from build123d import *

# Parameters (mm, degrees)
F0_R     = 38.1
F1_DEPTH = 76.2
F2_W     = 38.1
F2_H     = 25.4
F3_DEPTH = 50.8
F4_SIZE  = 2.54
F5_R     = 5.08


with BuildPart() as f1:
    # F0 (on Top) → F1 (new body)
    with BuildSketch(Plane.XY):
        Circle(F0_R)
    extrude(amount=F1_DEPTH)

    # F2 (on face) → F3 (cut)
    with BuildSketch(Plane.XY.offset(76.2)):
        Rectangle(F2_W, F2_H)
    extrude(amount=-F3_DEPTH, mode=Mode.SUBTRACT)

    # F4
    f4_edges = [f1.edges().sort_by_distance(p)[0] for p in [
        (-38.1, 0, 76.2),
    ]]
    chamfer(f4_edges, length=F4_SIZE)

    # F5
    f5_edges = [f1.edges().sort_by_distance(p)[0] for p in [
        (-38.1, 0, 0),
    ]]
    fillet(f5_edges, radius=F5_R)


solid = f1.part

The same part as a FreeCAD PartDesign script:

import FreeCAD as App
import Part
import Sketcher

V = App.Vector
Q = App.Units.Quantity


def edges_at(feature, points):
    """Names of the edges that pass closest to the given points."""
    edges = feature.Shape.Edges
    near = lambda p: min(range(len(edges)), key=lambda i: edges[i].distToShape(Part.Vertex(*p))[0])
    return sorted({f"Edge{near(p) + 1}" for p in points})


def add_polygon(sketch, points):
    """Adds a closed chain of lines whose ends are joined by coincident constraints."""
    first, n = sketch.GeometryCount, len(points)
    for a, b in zip(points, points[1:] + points[:1]):
        sketch.addGeometry(Part.LineSegment(App.Vector(*a, 0), App.Vector(*b, 0)), False)
    for i in range(n):
        sketch.addConstraint(Sketcher.Constraint("Coincident", first + i, 2, first + (i + 1) % n, 1))

doc = App.newDocument("Part")
body = doc.addObject("PartDesign::Body", "Body")

# Sketch on XY plane
sketch1 = doc.addObject("Sketcher::SketchObject", "Sketch")
body.addObject(sketch1)
sketch1.AttachmentSupport = (doc.XY_Plane, [""])
sketch1.MapMode = "FlatFace"
sketch1.addGeometry(Part.Circle(V(0, 0, 0), V(0, 0, 1), 38), False)
sketch1.addConstraint([
    Sketcher.Constraint("Coincident", 0, 3, -1, 1),
    Sketcher.Constraint("Diameter", 0, Q("3 in")),
])
pad1 = doc.addObject("PartDesign::Pad", "Pad")
body.addObject(pad1)
pad1.Profile = sketch1
pad1.Length = Q("3 in")

# Sketch on XY plane
sketch2 = doc.addObject("Sketcher::SketchObject", "Sketch001")
body.addObject(sketch2)
sketch2.AttachmentSupport = (doc.XY_Plane, [""])
sketch2.MapMode = "FlatFace"
sketch2.AttachmentOffset = App.Placement(V(0, 0, 3 * 25.4), App.Rotation())
add_polygon(sketch2, [(-19, 13), (-19, -13), (19, -13), (19, 13)])  # lines 0-3
sketch2.addConstraint([
    Sketcher.Constraint("Vertical", 0),
    Sketcher.Constraint("Horizontal", 1),
    Sketcher.Constraint("Vertical", 2),
    Sketcher.Constraint("Horizontal", 3),
    Sketcher.Constraint("Symmetric", 0, 2, 2, 2, -1, 1),
    Sketcher.Constraint("DistanceY", 0, 2, 0, 1, Q("1 in")),
    Sketcher.Constraint("DistanceX", 1, 1, 1, 2, Q("1.5 in")),
])
pocket1 = doc.addObject("PartDesign::Pocket", "Pocket")
body.addObject(pocket1)
pocket1.Profile = sketch2
pocket1.Length = Q("2 in")
doc.recompute()

chamfer = doc.addObject("PartDesign::Chamfer", "Chamfer")
body.addObject(chamfer)
chamfer.Base = (pocket1, edges_at(pocket1, [(-38.1, 0, 76.2)]))
chamfer.Size = Q("0.1 in")
doc.recompute()

fillet = doc.addObject("PartDesign::Fillet", "Fillet")
body.addObject(fillet)
fillet.Base = (chamfer, edges_at(chamfer, [(-38.1, 0, 0)]))
fillet.Radius = Q("0.2 in")

doc.recompute()
